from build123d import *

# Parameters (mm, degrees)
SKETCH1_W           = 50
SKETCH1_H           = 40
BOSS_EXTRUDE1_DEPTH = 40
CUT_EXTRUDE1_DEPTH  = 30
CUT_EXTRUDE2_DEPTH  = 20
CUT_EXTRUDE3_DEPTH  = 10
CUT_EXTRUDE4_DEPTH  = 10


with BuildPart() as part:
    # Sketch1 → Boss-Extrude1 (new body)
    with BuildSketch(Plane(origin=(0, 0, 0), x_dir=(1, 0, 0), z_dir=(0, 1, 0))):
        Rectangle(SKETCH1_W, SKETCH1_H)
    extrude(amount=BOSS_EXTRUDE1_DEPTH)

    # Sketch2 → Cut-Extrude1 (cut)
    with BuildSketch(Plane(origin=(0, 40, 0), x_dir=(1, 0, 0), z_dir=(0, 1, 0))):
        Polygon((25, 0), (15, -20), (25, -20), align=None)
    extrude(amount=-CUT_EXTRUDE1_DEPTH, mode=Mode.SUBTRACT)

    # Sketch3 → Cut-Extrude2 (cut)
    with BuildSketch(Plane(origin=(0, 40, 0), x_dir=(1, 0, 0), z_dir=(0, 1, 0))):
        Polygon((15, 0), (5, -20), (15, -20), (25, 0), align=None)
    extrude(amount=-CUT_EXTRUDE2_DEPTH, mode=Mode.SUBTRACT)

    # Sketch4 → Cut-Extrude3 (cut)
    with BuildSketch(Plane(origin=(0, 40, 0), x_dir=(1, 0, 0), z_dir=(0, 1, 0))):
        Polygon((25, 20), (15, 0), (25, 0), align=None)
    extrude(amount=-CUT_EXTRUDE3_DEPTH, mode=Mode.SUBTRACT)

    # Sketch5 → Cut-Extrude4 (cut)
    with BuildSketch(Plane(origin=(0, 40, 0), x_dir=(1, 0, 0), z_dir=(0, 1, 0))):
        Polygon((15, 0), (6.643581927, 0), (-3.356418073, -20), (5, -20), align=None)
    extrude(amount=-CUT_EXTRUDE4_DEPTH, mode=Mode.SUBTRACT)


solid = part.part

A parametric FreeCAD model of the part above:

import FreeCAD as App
import Part
import Sketcher
from FreeCAD import Vector

doc = App.newDocument("Part")
body = doc.addObject("PartDesign::Body", "Body")

sketch1 = body.newObject("Sketcher::SketchObject", "Sketch")
sketch1.AttachmentSupport = (doc.getObject("XZ_Plane"), [""])
sketch1.MapMode = "FlatFace"
sketch1.addGeometry([
    Part.LineSegment(Vector(-25, -20, 0), Vector(-25, 20, 0)),
    Part.LineSegment(Vector(-25, 20, 0), Vector(25, 20, 0)),
    Part.LineSegment(Vector(25, 20, 0), Vector(25, -20, 0)),
    Part.LineSegment(Vector(25, -20, 0), Vector(-25, -20, 0)),
], False)
sketch1.addConstraint([
    Sketcher.Constraint("Coincident", 0, 2, 1, 1),
    Sketcher.Constraint("Coincident", 1, 2, 2, 1),
    Sketcher.Constraint("Coincident", 2, 2, 3, 1),
    Sketcher.Constraint("Coincident", 3, 2, 0, 1),
    Sketcher.Constraint("Vertical", 0),
    Sketcher.Constraint("Horizontal", 1),
    Sketcher.Constraint("Vertical", 2),
    Sketcher.Constraint("Horizontal", 3),
    Sketcher.Constraint("Symmetric", 0, 2, 2, 2, -1, 1),
    Sketcher.Constraint("DistanceX", 1, 1, 1, 2, 50.0),
    Sketcher.Constraint("DistanceY", 0, 1, 0, 2, 40.0),
])
pad1 = body.newObject("PartDesign::Pad", "Pad")
pad1.Profile = sketch1
pad1.Length = 40
pad1.Reversed = True

sketch2 = body.newObject("Sketcher::SketchObject", "Sketch001")
sketch2.AttachmentSupport = (doc.getObject("XZ_Plane"), [""])
sketch2.MapMode = "FlatFace"
sketch2.AttachmentOffset = App.Placement(Vector(0, 0, -40), App.Rotation())
sketch2.addGeometry([
    Part.LineSegment(Vector(25, 0, 0), Vector(15, 20, 0)),
    Part.LineSegment(Vector(15, 20, 0), Vector(25, 20, 0)),
    Part.LineSegment(Vector(25, 20, 0), Vector(25, 0, 0)),
], False)
sketch2.addConstraint([
    Sketcher.Constraint("Coincident", 0, 2, 1, 1),
    Sketcher.Constraint("Coincident", 1, 2, 2, 1),
    Sketcher.Constraint("Coincident", 2, 2, 0, 1),
    Sketcher.Constraint("Horizontal", 1),
    Sketcher.Constraint("Vertical", 2),
    Sketcher.Constraint("PointOnObject", 2, 2, -1),
    Sketcher.Constraint("DistanceX", 1, 1, 1, 2, 10.0),
    Sketcher.Constraint("DistanceY", 2, 2, 2, 1, 20.0),
    Sketcher.Constraint("DistanceX", -1, 1, 0, 2, 15.0),
])
pocket1 = body.newObject("PartDesign::Pocket", "Pocket")
pocket1.Profile = sketch2
pocket1.Length = 30
pocket1.Reversed = True

sketch3 = body.newObject("Sketcher::SketchObject", "Sketch002")
sketch3.AttachmentSupport = (doc.getObject("XZ_Plane"), [""])
sketch3.MapMode = "FlatFace"
sketch3.AttachmentOffset = App.Placement(Vector(0, 0, -40), App.Rotation())
sketch3.addGeometry([
    Part.LineSegment(Vector(15, 0, 0), Vector(5, 20, 0)),
    Part.LineSegment(Vector(5, 20, 0), Vector(15, 20, 0)),
    Part.LineSegment(Vector(15, 20, 0), Vector(25, 0, 0)),
    Part.LineSegment(Vector(25, 0, 0), Vector(15, 0, 0)),
], False)
sketch3.addConstraint([
    Sketcher.Constraint("Coincident", 0, 2, 1, 1),
    Sketcher.Constraint("Coincident", 1, 2, 2, 1),
    Sketcher.Constraint("Coincident", 2, 2, 3, 1),
    Sketcher.Constraint("Coincident", 3, 2, 0, 1),
    Sketcher.Constraint("Horizontal", 1),
    Sketcher.Constraint("Horizontal", 3),
    Sketcher.Constraint("PointOnObject", 2, 2, -1),
    Sketcher.Constraint("Parallel", 0, 2),
    Sketcher.Constraint("Vertical", 1, 2, 3, 2),
    Sketcher.Constraint("DistanceX", 1, 1, 1, 2, 10.0),
    Sketcher.Constraint("DistanceX", -1, 1, 0, 2, 5.0),
    Sketcher.Constraint("DistanceY", -1, 1, 0, 2, 20.0),
])
pocket2 = body.newObject("PartDesign::Pocket", "Pocket001")
pocket2.Profile = sketch3
pocket2.Length = 20
pocket2.Reversed = True

sketch4 = body.newObject("Sketcher::SketchObject", "Sketch003")
sketch4.AttachmentSupport = (doc.getObject("XZ_Plane"), [""])
sketch4.MapMode = "FlatFace"
sketch4.AttachmentOffset = App.Placement(Vector(0, 0, -40), App.Rotation())
sketch4.addGeometry([
    Part.LineSegment(Vector(25, -20, 0), Vector(15, 0, 0)),
    Part.LineSegment(Vector(15, 0, 0), Vector(25, 0, 0)),
    Part.LineSegment(Vector(25, 0, 0), Vector(25, -20, 0)),
], False)
sketch4.addConstraint([
    Sketcher.Constraint("Coincident", 0, 2, 1, 1),
    Sketcher.Constraint("Coincident", 1, 2, 2, 1),
    Sketcher.Constraint("Coincident", 2, 2, 0, 1),
    Sketcher.Constraint("Horizontal", 1),
    Sketcher.Constraint("Vertical", 2),
    Sketcher.Constraint("PointOnObject", 0, 2, -1),
    Sketcher.Constraint("DistanceX", 1, 1, 1, 2, 10.0),
    Sketcher.Constraint("DistanceY", 2, 2, 2, 1, 20.0),
    Sketcher.Constraint("DistanceX", -1, 1, 0, 2, 15.0),
])
pocket3 = body.newObject("PartDesign::Pocket", "Pocket002")
pocket3.Profile = sketch4
pocket3.Length = 10
pocket3.Reversed = True

sketch5 = body.newObject("Sketcher::SketchObject", "Sketch004")
sketch5.AttachmentSupport = (doc.getObject("XZ_Plane"), [""])
sketch5.MapMode = "FlatFace"
sketch5.AttachmentOffset = App.Placement(Vector(0, 0, -40), App.Rotation())
sketch5.addGeometry([
    Part.LineSegment(Vector(15, 0, 0), Vector(7, 0, 0)),
    Part.LineSegment(Vector(7, 0, 0), Vector(-3, 20, 0)),
    Part.LineSegment(Vector(-3, 20, 0), Vector(5, 20, 0)),
    Part.LineSegment(Vector(5, 20, 0), Vector(15, 0, 0)),
], False)
sketch5.addConstraint([
    Sketcher.Constraint("Coincident", 0, 2, 1, 1),
    Sketcher.Constraint("Coincident", 1, 2, 2, 1),
    Sketcher.Constraint("Coincident", 2, 2, 3, 1),
    Sketcher.Constraint("Coincident", 3, 2, 0, 1),
    Sketcher.Constraint("Horizontal", 0),
    Sketcher.Constraint("Horizontal", 2),
    Sketcher.Constraint("PointOnObject", 0, 2, -1),
    Sketcher.Constraint("Parallel", 1, 3),
    Sketcher.Constraint("DistanceY", -1, 1, 1, 2, 20.0),
    Sketcher.Constraint("DistanceX", -1, 1, 2, 2, 5.0),
    Sketcher.Constraint("DistanceX", -1, 1, 3, 2, 15.0),
    Sketcher.Constraint("DistanceX", 0, 2, 0, 1, 8.356418),
])
pocket4 = body.newObject("PartDesign::Pocket", "Pocket003")
pocket4.Profile = sketch5
pocket4.Length = 10
pocket4.Reversed = True

doc.recompute()
